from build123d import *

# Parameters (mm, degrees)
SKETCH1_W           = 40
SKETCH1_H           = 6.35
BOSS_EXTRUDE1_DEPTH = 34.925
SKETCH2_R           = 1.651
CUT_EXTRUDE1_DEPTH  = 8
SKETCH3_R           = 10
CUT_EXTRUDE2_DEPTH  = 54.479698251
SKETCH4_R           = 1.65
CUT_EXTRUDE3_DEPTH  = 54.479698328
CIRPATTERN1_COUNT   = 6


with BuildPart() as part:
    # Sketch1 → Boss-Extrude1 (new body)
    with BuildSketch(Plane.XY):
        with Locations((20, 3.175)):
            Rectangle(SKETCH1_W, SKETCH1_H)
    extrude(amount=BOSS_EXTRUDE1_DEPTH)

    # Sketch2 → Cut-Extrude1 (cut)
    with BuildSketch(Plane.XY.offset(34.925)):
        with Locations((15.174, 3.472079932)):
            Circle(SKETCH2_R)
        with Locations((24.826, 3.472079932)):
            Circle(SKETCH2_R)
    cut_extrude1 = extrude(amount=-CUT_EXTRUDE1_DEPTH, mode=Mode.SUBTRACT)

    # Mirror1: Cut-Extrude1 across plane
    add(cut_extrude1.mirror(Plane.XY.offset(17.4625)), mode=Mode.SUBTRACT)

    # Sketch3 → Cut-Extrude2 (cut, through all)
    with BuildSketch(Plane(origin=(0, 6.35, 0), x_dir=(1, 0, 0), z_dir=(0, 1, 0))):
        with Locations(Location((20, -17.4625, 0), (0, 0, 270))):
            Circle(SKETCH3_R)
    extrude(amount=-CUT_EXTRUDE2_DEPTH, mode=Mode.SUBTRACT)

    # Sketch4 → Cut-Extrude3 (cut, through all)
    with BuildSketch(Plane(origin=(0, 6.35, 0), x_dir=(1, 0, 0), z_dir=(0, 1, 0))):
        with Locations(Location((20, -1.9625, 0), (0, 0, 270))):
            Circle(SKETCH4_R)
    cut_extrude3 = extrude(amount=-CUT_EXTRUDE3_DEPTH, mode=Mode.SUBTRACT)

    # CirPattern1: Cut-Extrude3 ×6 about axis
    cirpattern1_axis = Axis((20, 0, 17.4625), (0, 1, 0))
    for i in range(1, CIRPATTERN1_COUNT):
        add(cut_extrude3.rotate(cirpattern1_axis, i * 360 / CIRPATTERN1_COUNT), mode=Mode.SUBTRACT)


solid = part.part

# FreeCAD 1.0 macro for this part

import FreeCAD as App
import Part
import Sketcher
Q = App.Units.Quantity


def add_polygon(sketch, points):
    """Adds a closed chain of lines whose ends are joined by coincident constraints."""
    first, n = sketch.GeometryCount, len(points)
    for a, b in zip(points, points[1:] + points[:1]):
        sketch.addGeometry(Part.LineSegment(App.Vector(*a, 0), App.Vector(*b, 0)), False)
    for i in range(n):
        sketch.addConstraint(Sketcher.Constraint("Coincident", first + i, 2, first + (i + 1) % n, 1))

doc = App.newDocument("Part")
body = doc.addObject("PartDesign::Body", "Body")

# Sketch on XY plane
sketch1 = body.newObject("Sketcher::SketchObject", "Sketch")
sketch1.AttachmentSupport = (doc.getObject("XY_Plane"), [""])
sketch1.MapMode = "FlatFace"
add_polygon(sketch1, [(0, 6), (0, 0), (40, 0), (40, 6)])  # lines 0-3
sketch1.addConstraint(Sketcher.Constraint("Vertical", 0))
sketch1.addConstraint(Sketcher.Constraint("Horizontal", 1))
sketch1.addConstraint(Sketcher.Constraint("Vertical", 2))
sketch1.addConstraint(Sketcher.Constraint("Horizontal", 3))
sketch1.addConstraint(Sketcher.Constraint("Coincident", 0, 2, -1, 1))
sketch1.addConstraint(Sketcher.Constraint("DistanceX", 1, 1, 1, 2, Q("40 mm")))
sketch1.addConstraint(Sketcher.Constraint("DistanceY", 0, 2, 0, 1, Q("6.35 mm")))
pad1 = body.newObject("PartDesign::Pad", "Pad")
pad1.Profile = sketch1
pad1.Length = 34.925

# Sketch on XY plane
sketch2 = body.newObject("Sketcher::SketchObject", "Sketch001")
sketch2.AttachmentSupport = (doc.getObject("XY_Plane"), [""])
sketch2.MapMode = "FlatFace"
sketch2.AttachmentOffset = App.Placement(App.Vector(0, 0, 34.925), App.Rotation())
sketch2.addGeometry(Part.Circle(App.Vector(15.2, 3.5, 0), App.Vector(0, 0, 1), 1.7), False)
sketch2.addGeometry(Part.Circle(App.Vector(24.8, 3.5, 0), App.Vector(0, 0, 1), 1.7), False)
sketch2.addConstraint(Sketcher.Constraint("Equal", 0, 1))
sketch2.addConstraint(Sketcher.Constraint("Horizontal", 0, 3, 1, 3))
sketch2.addConstraint(Sketcher.Constraint("Diameter", 0, Q("3.302 mm")))
sketch2.addConstraint(Sketcher.Constraint("DistanceX", -1, 1, 0, 3, Q("15.174 mm")))
sketch2.addConstraint(Sketcher.Constraint("DistanceX", -1, 1, 1, 3, Q("24.826 mm")))
sketch2.addConstraint(Sketcher.Constraint("DistanceY", -1, 1, 0, 3, Q("3.47208 mm")))
pocket1 = body.newObject("PartDesign::Pocket", "Pocket")
pocket1.Profile = sketch2
pocket1.Length = 8
doc.recompute()

datumplane = body.newObject("PartDesign::Plane", "DatumPlane")
datumplane.AttachmentSupport = (doc.getObject("XY_Plane"), [""])
datumplane.MapMode = "FlatFace"
datumplane.AttachmentOffset = App.Placement(App.Vector(0, 0, 17.4625), App.Rotation())
mirrored = body.newObject("PartDesign::Mirrored", "Mirrored")
mirrored.Originals = [pocket1]
mirrored.MirrorPlane = (datumplane, [""])
body.Tip = mirrored

# Sketch on XZ plane
sketch3 = body.newObject("Sketcher::SketchObject", "Sketch002")
sketch3.AttachmentSupport = (doc.getObject("XZ_Plane"), [""])
sketch3.MapMode = "FlatFace"
sketch3.AttachmentOffset = App.Placement(App.Vector(0, 0, -6.35), App.Rotation())
sketch3.addGeometry(Part.Circle(App.Vector(20, 17, 0), App.Vector(0, 0, 1), 10), False)
sketch3.addConstraint(Sketcher.Constraint("Diameter", 0, Q("20 mm")))
sketch3.addConstraint(Sketcher.Constraint("DistanceX", -1, 1, 0, 3, Q("20 mm")))
sketch3.addConstraint(Sketcher.Constraint("DistanceY", -1, 1, 0, 3, Q("17.4625 mm")))
pocket2 = body.newObject("PartDesign::Pocket", "Pocket001")
pocket2.Profile = sketch3
pocket2.Type = "ThroughAll"
pocket2.Reversed = True

# Sketch on XZ plane
sketch4 = body.newObject("Sketcher::SketchObject", "Sketch003")
sketch4.AttachmentSupport = (doc.getObject("XZ_Plane"), [""])
sketch4.MapMode = "FlatFace"
sketch4.AttachmentOffset = App.Placement(App.Vector(0, 0, -6.35), App.Rotation())
sketch4.addGeometry(Part.Circle(App.Vector(20, 2, 0), App.Vector(0, 0, 1), 1.6), False)
sketch4.addConstraint(Sketcher.Constraint("Diameter", 0, Q("3.3 mm")))
sketch4.addConstraint(Sketcher.Constraint("DistanceX", -1, 1, 0, 3, Q("20 mm")))
sketch4.addConstraint(Sketcher.Constraint("DistanceY", -1, 1, 0, 3, Q("1.9625 mm")))
pocket3 = body.newObject("PartDesign::Pocket", "Pocket002")
pocket3.Profile = sketch4
pocket3.Type = "ThroughAll"
pocket3.Reversed = True
doc.recompute()

datumline = body.newObject("PartDesign::Line", "DatumLine")
datumline.Placement = App.Placement(App.Vector(20, 0, 17.4625), App.Rotation(App.Vector(0, 0, 1), App.Vector(0, 1, 0)))
polarpattern = body.newObject("PartDesign::PolarPattern", "PolarPattern")
polarpattern.Originals = [pocket3]
polarpattern.Axis = (datumline, [""])
polarpattern.Angle = 360
polarpattern.Occurrences = 6
body.Tip = polarpattern

doc.recompute()
